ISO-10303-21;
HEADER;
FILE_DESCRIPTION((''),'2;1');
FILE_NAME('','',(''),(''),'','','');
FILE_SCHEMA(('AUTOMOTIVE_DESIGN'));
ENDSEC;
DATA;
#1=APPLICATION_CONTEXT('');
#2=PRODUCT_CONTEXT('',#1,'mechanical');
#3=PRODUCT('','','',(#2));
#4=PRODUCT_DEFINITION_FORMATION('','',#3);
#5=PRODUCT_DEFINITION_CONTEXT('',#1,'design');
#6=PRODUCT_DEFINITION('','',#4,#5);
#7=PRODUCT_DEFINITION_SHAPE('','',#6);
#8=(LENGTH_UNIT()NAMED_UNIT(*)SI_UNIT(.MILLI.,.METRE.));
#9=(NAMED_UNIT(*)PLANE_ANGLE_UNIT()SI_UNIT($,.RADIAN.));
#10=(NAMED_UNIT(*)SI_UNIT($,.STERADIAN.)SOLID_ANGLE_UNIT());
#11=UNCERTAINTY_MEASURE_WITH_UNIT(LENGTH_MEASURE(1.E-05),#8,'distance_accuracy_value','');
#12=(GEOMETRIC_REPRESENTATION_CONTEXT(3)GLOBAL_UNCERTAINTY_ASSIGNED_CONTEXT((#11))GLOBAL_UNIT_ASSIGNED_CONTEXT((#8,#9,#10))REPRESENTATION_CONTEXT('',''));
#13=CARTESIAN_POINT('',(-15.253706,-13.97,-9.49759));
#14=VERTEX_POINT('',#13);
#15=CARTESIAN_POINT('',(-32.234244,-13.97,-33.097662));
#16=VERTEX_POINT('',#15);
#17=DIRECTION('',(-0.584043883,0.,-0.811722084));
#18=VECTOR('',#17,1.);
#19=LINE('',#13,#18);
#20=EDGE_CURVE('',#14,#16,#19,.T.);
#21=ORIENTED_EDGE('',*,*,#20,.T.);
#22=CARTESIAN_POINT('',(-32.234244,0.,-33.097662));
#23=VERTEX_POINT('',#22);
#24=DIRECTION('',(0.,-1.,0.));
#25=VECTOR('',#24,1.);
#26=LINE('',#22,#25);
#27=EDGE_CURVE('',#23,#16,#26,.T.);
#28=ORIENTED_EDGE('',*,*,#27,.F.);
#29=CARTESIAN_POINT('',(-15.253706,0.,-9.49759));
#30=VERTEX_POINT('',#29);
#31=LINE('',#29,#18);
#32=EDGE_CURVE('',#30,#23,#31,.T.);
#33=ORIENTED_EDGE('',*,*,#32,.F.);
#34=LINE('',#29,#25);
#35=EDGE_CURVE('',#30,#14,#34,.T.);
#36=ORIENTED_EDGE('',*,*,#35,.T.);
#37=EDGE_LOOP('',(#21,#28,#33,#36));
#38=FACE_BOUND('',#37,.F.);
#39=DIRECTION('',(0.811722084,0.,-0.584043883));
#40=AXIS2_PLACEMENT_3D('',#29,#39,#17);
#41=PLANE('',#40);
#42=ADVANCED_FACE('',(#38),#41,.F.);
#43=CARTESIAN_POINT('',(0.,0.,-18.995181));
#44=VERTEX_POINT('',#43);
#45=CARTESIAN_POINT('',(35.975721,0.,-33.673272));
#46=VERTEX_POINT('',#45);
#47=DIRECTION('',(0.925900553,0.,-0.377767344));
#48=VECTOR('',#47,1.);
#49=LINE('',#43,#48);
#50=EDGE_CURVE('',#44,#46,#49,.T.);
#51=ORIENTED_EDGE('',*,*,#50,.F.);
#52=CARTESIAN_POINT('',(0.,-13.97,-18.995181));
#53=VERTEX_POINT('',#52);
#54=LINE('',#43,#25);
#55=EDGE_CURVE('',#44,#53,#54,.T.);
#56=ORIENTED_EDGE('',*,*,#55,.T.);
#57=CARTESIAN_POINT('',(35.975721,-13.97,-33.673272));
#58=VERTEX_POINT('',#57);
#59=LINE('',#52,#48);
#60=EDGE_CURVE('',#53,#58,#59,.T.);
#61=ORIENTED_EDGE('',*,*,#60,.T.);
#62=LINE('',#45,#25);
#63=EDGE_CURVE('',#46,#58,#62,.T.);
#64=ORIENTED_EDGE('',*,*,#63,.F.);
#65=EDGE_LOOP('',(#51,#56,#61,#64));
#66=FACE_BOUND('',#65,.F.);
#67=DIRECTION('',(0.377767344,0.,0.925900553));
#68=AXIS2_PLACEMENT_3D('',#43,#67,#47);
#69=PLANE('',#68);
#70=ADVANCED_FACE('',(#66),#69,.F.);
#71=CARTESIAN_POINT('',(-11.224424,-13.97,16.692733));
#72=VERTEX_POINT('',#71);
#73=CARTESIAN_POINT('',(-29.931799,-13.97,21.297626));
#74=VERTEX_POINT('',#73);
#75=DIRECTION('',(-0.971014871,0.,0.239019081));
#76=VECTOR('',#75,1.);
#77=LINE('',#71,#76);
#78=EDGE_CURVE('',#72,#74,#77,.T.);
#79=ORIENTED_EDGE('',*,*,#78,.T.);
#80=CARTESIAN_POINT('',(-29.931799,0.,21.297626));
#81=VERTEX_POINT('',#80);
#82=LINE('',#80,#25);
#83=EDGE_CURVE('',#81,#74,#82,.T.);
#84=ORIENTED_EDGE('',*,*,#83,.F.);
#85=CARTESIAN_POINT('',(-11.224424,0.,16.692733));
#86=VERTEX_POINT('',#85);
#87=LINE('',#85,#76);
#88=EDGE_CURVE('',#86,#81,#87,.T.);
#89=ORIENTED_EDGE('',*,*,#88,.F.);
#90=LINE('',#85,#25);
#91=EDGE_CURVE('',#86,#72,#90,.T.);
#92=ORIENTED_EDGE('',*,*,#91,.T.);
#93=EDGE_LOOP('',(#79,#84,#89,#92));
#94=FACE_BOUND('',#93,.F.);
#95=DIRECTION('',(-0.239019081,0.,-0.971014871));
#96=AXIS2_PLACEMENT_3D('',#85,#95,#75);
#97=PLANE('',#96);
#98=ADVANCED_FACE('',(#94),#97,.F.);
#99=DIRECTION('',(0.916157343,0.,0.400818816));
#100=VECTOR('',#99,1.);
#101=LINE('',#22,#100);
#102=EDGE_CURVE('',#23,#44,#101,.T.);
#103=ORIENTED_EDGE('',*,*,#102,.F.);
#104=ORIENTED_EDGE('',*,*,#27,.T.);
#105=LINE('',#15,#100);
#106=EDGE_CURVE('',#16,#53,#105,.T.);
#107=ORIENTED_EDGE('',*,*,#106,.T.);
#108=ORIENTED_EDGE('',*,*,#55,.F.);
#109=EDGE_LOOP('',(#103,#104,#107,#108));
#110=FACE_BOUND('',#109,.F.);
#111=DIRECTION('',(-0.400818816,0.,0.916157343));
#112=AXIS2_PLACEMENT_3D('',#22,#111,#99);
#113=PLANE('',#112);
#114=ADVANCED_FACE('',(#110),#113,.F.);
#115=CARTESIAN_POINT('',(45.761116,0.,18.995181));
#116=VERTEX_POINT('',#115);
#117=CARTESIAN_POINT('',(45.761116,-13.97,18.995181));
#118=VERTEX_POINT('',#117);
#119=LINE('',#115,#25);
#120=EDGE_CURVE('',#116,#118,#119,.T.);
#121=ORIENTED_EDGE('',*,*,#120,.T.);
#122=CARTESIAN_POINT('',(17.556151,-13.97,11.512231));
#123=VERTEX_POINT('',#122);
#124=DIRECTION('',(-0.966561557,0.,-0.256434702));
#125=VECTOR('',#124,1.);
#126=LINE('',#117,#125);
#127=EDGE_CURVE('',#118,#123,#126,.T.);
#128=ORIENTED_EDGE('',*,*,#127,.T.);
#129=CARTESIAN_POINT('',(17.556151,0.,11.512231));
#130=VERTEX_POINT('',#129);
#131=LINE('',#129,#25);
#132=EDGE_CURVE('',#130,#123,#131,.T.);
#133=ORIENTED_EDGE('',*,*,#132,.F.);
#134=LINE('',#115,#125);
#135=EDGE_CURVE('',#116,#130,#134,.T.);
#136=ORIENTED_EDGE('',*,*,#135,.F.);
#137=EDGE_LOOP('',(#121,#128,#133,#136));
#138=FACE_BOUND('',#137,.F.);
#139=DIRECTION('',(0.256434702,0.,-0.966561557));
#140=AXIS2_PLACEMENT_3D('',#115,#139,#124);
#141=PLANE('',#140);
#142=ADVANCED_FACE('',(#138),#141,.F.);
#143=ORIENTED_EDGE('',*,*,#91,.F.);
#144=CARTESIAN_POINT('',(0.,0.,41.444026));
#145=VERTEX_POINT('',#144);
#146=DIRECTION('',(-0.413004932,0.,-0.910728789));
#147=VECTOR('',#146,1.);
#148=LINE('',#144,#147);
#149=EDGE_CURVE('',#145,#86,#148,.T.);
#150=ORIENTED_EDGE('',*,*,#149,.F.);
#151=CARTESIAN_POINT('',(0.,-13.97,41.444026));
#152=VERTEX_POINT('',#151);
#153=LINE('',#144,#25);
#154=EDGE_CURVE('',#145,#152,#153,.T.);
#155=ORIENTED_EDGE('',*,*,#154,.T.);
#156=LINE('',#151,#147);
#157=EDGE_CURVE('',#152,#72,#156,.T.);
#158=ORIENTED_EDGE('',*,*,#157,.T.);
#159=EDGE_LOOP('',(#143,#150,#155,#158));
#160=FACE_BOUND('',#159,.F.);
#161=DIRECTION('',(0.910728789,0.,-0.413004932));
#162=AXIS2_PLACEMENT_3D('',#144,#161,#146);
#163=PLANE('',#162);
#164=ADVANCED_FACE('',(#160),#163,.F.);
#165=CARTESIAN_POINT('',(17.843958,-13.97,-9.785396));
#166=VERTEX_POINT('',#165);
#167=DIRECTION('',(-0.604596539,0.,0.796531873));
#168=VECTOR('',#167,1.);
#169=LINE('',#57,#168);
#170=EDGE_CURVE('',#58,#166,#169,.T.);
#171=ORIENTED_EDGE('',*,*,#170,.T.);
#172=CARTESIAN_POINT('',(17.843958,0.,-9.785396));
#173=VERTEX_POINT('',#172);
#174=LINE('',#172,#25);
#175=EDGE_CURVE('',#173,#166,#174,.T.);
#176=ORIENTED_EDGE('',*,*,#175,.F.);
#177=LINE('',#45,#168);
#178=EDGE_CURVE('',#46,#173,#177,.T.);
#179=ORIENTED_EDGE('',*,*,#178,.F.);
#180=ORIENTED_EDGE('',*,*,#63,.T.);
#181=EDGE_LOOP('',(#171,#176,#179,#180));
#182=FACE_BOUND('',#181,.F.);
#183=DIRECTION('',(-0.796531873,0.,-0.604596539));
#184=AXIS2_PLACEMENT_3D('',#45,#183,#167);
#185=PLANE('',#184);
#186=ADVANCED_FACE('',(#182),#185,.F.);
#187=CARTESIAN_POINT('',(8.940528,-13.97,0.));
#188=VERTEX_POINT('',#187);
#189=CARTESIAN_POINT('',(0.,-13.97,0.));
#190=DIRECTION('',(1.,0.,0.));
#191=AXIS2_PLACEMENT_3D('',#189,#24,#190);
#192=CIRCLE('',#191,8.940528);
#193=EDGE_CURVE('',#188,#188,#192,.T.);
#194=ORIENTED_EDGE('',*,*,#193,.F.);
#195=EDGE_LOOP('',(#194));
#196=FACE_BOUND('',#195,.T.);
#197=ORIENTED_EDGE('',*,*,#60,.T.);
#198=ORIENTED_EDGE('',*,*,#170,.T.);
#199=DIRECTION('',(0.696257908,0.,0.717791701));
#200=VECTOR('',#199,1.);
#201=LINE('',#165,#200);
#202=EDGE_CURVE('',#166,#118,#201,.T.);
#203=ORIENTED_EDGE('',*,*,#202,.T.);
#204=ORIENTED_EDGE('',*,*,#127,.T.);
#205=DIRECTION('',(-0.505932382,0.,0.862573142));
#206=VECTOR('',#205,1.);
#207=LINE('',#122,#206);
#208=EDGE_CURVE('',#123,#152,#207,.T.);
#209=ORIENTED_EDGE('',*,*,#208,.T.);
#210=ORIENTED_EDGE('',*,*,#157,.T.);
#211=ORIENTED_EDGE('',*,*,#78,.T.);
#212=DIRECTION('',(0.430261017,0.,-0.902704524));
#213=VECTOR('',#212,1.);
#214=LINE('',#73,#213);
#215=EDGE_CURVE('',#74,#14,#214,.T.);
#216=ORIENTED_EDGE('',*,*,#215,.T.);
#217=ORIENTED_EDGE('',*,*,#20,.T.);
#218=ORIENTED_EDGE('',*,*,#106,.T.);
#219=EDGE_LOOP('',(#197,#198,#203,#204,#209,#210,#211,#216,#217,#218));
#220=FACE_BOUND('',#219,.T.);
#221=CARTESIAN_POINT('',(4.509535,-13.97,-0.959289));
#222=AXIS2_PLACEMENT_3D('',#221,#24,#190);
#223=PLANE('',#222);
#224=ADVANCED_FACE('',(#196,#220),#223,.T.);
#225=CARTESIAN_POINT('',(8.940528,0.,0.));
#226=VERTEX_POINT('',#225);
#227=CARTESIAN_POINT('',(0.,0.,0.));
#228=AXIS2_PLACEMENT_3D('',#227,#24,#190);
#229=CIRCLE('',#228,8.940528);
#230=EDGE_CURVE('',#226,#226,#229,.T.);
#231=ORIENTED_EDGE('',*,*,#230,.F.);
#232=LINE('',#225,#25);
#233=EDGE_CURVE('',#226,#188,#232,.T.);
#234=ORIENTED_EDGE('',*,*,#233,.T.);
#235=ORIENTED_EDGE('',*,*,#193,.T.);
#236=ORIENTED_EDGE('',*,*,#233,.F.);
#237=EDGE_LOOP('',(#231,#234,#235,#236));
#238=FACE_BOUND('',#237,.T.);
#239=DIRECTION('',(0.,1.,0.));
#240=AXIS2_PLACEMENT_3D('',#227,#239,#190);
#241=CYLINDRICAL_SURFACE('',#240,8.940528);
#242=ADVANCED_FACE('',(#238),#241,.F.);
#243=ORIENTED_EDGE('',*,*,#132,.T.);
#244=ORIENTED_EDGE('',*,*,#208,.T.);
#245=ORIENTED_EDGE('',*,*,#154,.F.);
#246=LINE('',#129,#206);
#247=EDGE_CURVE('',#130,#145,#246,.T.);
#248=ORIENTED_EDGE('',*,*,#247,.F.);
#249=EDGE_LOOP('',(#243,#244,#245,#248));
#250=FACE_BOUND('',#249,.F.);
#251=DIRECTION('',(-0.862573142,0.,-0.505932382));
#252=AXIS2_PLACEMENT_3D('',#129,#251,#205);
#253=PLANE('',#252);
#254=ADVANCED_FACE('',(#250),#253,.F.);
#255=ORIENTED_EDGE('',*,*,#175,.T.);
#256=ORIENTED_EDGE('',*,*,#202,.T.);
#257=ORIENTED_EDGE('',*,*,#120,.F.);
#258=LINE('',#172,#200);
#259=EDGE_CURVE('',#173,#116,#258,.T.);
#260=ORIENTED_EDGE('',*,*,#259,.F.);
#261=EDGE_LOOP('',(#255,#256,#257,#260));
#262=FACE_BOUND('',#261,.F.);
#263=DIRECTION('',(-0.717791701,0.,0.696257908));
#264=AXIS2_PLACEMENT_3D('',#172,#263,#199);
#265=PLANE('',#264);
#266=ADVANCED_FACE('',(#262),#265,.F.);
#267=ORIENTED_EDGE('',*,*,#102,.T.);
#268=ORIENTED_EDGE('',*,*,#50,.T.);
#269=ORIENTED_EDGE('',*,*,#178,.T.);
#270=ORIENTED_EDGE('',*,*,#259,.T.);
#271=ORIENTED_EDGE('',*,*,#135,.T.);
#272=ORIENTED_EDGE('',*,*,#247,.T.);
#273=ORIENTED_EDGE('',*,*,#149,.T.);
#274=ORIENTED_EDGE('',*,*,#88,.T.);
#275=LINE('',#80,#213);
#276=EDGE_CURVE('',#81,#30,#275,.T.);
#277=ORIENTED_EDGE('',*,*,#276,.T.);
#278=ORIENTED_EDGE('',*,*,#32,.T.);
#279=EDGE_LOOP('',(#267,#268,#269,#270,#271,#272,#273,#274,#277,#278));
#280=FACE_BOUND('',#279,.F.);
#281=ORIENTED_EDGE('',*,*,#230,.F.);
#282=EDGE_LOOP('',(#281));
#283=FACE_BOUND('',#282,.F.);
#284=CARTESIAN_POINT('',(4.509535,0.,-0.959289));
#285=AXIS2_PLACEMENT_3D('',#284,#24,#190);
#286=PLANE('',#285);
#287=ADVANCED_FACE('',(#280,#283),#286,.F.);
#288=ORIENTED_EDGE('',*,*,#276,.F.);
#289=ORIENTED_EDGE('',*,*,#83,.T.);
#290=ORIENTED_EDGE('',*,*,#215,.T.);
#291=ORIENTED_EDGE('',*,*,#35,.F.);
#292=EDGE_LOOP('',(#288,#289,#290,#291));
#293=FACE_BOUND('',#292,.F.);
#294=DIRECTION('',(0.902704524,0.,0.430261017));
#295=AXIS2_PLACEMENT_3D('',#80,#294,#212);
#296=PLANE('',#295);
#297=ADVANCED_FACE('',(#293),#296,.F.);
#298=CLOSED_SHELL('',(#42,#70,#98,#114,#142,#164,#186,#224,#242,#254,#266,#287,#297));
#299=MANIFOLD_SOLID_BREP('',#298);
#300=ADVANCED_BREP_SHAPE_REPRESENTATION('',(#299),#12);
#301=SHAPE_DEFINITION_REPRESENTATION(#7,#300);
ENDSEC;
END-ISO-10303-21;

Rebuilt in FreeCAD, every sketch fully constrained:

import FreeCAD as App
import Part
import Sketcher
from FreeCAD import Vector
Q = App.Units.Quantity


def add_polygon(sketch, points):
    """Adds a closed chain of lines whose ends are joined by coincident constraints."""
    first, n = sketch.GeometryCount, len(points)
    for a, b in zip(points, points[1:] + points[:1]):
        sketch.addGeometry(Part.LineSegment(App.Vector(*a, 0), App.Vector(*b, 0)), False)
    for i in range(n):
        sketch.addConstraint(Sketcher.Constraint("Coincident", first + i, 2, first + (i + 1) % n, 1))

doc = App.newDocument("Part")
params = doc.addObject("Spreadsheet::Sheet", "Params")
for row, (alias, value) in enumerate([
    ("pad1_length", "0.55 in"),
], start=1):
    params.set(f"A{row}", alias)
    params.set(f"B{row}", "=" + value)
    params.setAlias(f"B{row}", alias)

body = doc.addObject("PartDesign::Body", "Body")

# Sketch on XZ plane
sketch1 = body.newObject("Sketcher::SketchObject", "Sketch")
sketch1.AttachmentSupport = (doc.getObject("XZ_Plane"), [""])
sketch1.MapMode = "FlatFace"
add_polygon(sketch1, [(17.556151, 11.512231), (0, 41.444026), (-11.224424, 16.692733), (-29.931799, 21.297626), (-15.253706, -9.49759), (-32.234244, -33.097662), (0, -18.995181), (35.975721, -33.673272), (17.843958, -9.785396), (45.761116, 18.995181)])  # lines 0-9
sketch1.addConstraint([
    Sketcher.Constraint("PointOnObject", 0, 2, -2),
    Sketcher.Constraint("PointOnObject", 5, 2, -2),
    Sketcher.Constraint("Distance", 8, Q("40.096001 mm")),
    Sketcher.Constraint("DistanceX", 2, 2, -1, 1, Q("29.931799 mm")),
    Sketcher.Constraint("DistanceY", 2, 2, 0, 2, Q("20.1464 mm")),
    Sketcher.Constraint("DistanceY", 6, 2, 0, 2, Q("75.117298 mm")),
    Sketcher.Constraint("Distance", 4, Q("29.074079 mm")),
    Sketcher.Constraint("Distance", 5, Q("35.184179 mm")),
    Sketcher.Constraint("DistanceY", 3, 2, -1, 1, Q("9.49759 mm")),
    Sketcher.Constraint("DistanceY", 5, 2, -1, 1, Q("18.995181 mm")),
    Sketcher.Constraint("DistanceX", -1, 1, 6, 2, Q("35.975721 mm")),
    Sketcher.Constraint("DistanceY", 6, 2, -1, 1, Q("33.673272 mm")),
    Sketcher.Constraint("DistanceX", -1, 1, 7, 2, Q("17.843958 mm")),
    Sketcher.Constraint("DistanceY", -1, 1, 8, 2, Q("18.995181 mm")),
    Sketcher.Constraint("DistanceX", -1, 1, 9, 2, Q("17.556151 mm")),
    Sketcher.Constraint("DistanceY", -1, 1, 9, 2, Q("11.512231 mm")),
    Sketcher.Constraint("DistanceX", 3, 2, 1, 2, Q("4.029282 mm")),
    Sketcher.Constraint("DistanceY", 4, 2, 3, 2, Q("23.600072 mm")),
    Sketcher.Constraint("DistanceY", 7, 2, 1, 2, Q("26.478129 mm")),
    Sketcher.Constraint("DistanceX", 7, 2, 8, 2, Q("27.917158 mm")),
])
pad1 = body.newObject("PartDesign::Pad", "Pad")
pad1.Profile = sketch1
pad1.setExpression("Length", "Params.pad1_length")

# Sketch on XZ plane
sketch2 = body.newObject("Sketcher::SketchObject", "Sketch001")
sketch2.AttachmentSupport = (doc.getObject("XZ_Plane"), [""])
sketch2.MapMode = "FlatFace"
sketch2.addGeometry(Part.Circle(Vector(0, 0, 0), Vector(0, 0, 1), 8.940528), False)
sketch2.addConstraint([
    Sketcher.Constraint("Coincident", 0, 3, -1, 1),
    Sketcher.Constraint("Diameter", 0, Q("17.881056 mm")),
])
pocket1 = body.newObject("PartDesign::Pocket", "Pocket")
pocket1.Profile = sketch2
pocket1.Type = "ThroughAll"
pocket1.Reversed = True

doc.recompute()
